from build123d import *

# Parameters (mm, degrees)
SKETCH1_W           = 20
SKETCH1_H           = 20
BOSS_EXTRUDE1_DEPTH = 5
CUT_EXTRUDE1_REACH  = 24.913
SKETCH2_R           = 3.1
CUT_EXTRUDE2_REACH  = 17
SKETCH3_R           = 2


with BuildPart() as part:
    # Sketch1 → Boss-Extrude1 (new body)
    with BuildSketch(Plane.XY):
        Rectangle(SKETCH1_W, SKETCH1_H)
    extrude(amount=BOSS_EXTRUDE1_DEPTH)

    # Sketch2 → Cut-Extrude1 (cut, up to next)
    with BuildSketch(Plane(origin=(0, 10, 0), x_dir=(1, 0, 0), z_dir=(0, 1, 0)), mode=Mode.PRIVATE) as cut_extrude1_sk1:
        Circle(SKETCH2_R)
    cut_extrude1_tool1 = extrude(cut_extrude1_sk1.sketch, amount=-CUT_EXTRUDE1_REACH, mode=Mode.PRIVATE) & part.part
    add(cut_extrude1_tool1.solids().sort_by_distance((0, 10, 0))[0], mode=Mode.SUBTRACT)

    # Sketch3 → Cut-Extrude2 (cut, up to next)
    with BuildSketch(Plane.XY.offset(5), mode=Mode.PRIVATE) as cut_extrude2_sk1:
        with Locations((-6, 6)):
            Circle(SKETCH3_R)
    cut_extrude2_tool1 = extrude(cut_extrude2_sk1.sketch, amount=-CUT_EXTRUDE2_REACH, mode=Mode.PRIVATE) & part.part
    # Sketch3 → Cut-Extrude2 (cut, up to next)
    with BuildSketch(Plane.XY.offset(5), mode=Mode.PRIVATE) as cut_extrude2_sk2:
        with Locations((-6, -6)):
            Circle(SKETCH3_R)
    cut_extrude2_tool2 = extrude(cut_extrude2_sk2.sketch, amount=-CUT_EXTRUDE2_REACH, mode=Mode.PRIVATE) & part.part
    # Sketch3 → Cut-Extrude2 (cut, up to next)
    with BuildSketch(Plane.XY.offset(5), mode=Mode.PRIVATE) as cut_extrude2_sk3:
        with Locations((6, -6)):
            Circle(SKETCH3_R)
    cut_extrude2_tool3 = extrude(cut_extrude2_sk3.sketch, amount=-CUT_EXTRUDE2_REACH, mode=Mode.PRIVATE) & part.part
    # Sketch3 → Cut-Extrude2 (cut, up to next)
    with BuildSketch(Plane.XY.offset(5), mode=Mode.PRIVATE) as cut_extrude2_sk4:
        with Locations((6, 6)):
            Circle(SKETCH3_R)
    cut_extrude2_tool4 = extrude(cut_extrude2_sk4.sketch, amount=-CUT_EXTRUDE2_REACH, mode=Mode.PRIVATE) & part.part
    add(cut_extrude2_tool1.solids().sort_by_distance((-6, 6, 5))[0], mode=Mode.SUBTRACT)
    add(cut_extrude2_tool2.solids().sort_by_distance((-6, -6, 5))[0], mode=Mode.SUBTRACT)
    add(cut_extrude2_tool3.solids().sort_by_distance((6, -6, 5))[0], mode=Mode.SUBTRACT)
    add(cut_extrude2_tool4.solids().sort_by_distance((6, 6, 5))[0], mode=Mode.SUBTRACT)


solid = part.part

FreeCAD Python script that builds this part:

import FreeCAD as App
import Part
import Sketcher
from FreeCAD import Vector


def add_polygon(sketch, points):
    """Adds a closed chain of lines whose ends are joined by coincident constraints."""
    first, n = sketch.GeometryCount, len(points)
    for a, b in zip(points, points[1:] + points[:1]):
        sketch.addGeometry(Part.LineSegment(App.Vector(*a, 0), App.Vector(*b, 0)), False)
    for i in range(n):
        sketch.addConstraint(Sketcher.Constraint("Coincident", first + i, 2, first + (i + 1) % n, 1))

doc = App.newDocument("Part")
body = doc.addObject("PartDesign::Body", "Body")

sketch1 = body.newObject("Sketcher::SketchObject", "Sketch")
sketch1.AttachmentSupport = (doc.getObject("XY_Plane"), [""])
sketch1.MapMode = "FlatFace"
add_polygon(sketch1, [(-10, 10), (-10, -10), (10, -10), (10, 10)])
sketch1.addConstraint([
    Sketcher.Constraint("Vertical", 0),
    Sketcher.Constraint("Horizontal", 1),
    Sketcher.Constraint("Vertical", 2),
    Sketcher.Constraint("Horizontal", 3),
    Sketcher.Constraint("Symmetric", 0, 2, 2, 2, -1, 1),
    Sketcher.Constraint("Equal", 3, 0),
    Sketcher.Constraint("DistanceX", 1, 1, 1, 2, 20.0),
])
pad1 = body.newObject("PartDesign::Pad", "Pad")
pad1.Profile = sketch1
pad1.Length = 5

sketch2 = body.newObject("Sketcher::SketchObject", "Sketch001")
sketch2.AttachmentSupport = (doc.getObject("XZ_Plane"), [""])
sketch2.MapMode = "FlatFace"
sketch2.AttachmentOffset = App.Placement(Vector(0, 0, -10), App.Rotation())
sketch2.addGeometry(Part.Circle(Vector(0, 0, 0), Vector(0, 0, 1), 3.1), False)
sketch2.addConstraint([
    Sketcher.Constraint("Coincident", 0, 3, -1, 1),
    Sketcher.Constraint("Diameter", 0, 6.2),
])
pocket1 = body.newObject("PartDesign::Pocket", "Pocket")
pocket1.Profile = sketch2
pocket1.Type = "UpToFirst"
pocket1.Reversed = True

sketch3 = body.newObject("Sketcher::SketchObject", "Sketch002")
sketch3.AttachmentSupport = (doc.getObject("XY_Plane"), [""])
sketch3.MapMode = "FlatFace"
sketch3.AttachmentOffset = App.Placement(Vector(0, 0, 5), App.Rotation())
sketch3.addGeometry(Part.Circle(Vector(-6, 6, 0), Vector(0, 0, 1), 2), False)
sketch3.addConstraint([
    Sketcher.Constraint("Diameter", 0, 4.0),
    Sketcher.Constraint("DistanceX", 0, 3, -1, 1, 6.0),
    Sketcher.Constraint("DistanceY", -1, 1, 0, 3, 6.0),
])
pocket2 = body.newObject("PartDesign::Pocket", "Pocket001")
pocket2.Profile = sketch3
pocket2.Type = "UpToFirst"

sketch4 = body.newObject("Sketcher::SketchObject", "Sketch003")
sketch4.AttachmentSupport = (doc.getObject("XY_Plane"), [""])
sketch4.MapMode = "FlatFace"
sketch4.AttachmentOffset = App.Placement(Vector(0, 0, 5), App.Rotation())
sketch4.addGeometry(Part.Circle(Vector(-6, -6, 0), Vector(0, 0, 1), 2), False)
sketch4.addConstraint([
    Sketcher.Constraint("Diameter", 0, 4.0),
    Sketcher.Constraint("DistanceX", 0, 3, -1, 1, 6.0),
    Sketcher.Constraint("DistanceY", 0, 3, -1, 1, 6.0),
])
pocket3 = body.newObject("PartDesign::Pocket", "Pocket002")
pocket3.Profile = sketch4
pocket3.Type = "UpToFirst"

sketch5 = body.newObject("Sketcher::SketchObject", "Sketch004")
sketch5.AttachmentSupport = (doc.getObject("XY_Plane"), [""])
sketch5.MapMode = "FlatFace"
sketch5.AttachmentOffset = App.Placement(Vector(0, 0, 5), App.Rotation())
sketch5.addGeometry(Part.Circle(Vector(6, -6, 0), Vector(0, 0, 1), 2), False)
sketch5.addConstraint([
    Sketcher.Constraint("Diameter", 0, 4.0),
    Sketcher.Constraint("DistanceX", -1, 1, 0, 3, 6.0),
    Sketcher.Constraint("DistanceY", 0, 3, -1, 1, 6.0),
])
pocket4 = body.newObject("PartDesign::Pocket", "Pocket003")
pocket4.Profile = sketch5
pocket4.Type = "UpToFirst"

sketch6 = body.newObject("Sketcher::SketchObject", "Sketch005")
sketch6.AttachmentSupport = (doc.getObject("XY_Plane"), [""])
sketch6.MapMode = "FlatFace"
sketch6.AttachmentOffset = App.Placement(Vector(0, 0, 5), App.Rotation())
sketch6.addGeometry(Part.Circle(Vector(6, 6, 0), Vector(0, 0, 1), 2), False)
sketch6.addConstraint([
    Sketcher.Constraint("Diameter", 0, 4.0),
    Sketcher.Constraint("DistanceX", -1, 1, 0, 3, 6.0),
    Sketcher.Constraint("DistanceY", -1, 1, 0, 3, 6.0),
])
pocket5 = body.newObject("PartDesign::Pocket", "Pocket004")
pocket5.Profile = sketch6
pocket5.Type = "UpToFirst"

doc.recompute()
